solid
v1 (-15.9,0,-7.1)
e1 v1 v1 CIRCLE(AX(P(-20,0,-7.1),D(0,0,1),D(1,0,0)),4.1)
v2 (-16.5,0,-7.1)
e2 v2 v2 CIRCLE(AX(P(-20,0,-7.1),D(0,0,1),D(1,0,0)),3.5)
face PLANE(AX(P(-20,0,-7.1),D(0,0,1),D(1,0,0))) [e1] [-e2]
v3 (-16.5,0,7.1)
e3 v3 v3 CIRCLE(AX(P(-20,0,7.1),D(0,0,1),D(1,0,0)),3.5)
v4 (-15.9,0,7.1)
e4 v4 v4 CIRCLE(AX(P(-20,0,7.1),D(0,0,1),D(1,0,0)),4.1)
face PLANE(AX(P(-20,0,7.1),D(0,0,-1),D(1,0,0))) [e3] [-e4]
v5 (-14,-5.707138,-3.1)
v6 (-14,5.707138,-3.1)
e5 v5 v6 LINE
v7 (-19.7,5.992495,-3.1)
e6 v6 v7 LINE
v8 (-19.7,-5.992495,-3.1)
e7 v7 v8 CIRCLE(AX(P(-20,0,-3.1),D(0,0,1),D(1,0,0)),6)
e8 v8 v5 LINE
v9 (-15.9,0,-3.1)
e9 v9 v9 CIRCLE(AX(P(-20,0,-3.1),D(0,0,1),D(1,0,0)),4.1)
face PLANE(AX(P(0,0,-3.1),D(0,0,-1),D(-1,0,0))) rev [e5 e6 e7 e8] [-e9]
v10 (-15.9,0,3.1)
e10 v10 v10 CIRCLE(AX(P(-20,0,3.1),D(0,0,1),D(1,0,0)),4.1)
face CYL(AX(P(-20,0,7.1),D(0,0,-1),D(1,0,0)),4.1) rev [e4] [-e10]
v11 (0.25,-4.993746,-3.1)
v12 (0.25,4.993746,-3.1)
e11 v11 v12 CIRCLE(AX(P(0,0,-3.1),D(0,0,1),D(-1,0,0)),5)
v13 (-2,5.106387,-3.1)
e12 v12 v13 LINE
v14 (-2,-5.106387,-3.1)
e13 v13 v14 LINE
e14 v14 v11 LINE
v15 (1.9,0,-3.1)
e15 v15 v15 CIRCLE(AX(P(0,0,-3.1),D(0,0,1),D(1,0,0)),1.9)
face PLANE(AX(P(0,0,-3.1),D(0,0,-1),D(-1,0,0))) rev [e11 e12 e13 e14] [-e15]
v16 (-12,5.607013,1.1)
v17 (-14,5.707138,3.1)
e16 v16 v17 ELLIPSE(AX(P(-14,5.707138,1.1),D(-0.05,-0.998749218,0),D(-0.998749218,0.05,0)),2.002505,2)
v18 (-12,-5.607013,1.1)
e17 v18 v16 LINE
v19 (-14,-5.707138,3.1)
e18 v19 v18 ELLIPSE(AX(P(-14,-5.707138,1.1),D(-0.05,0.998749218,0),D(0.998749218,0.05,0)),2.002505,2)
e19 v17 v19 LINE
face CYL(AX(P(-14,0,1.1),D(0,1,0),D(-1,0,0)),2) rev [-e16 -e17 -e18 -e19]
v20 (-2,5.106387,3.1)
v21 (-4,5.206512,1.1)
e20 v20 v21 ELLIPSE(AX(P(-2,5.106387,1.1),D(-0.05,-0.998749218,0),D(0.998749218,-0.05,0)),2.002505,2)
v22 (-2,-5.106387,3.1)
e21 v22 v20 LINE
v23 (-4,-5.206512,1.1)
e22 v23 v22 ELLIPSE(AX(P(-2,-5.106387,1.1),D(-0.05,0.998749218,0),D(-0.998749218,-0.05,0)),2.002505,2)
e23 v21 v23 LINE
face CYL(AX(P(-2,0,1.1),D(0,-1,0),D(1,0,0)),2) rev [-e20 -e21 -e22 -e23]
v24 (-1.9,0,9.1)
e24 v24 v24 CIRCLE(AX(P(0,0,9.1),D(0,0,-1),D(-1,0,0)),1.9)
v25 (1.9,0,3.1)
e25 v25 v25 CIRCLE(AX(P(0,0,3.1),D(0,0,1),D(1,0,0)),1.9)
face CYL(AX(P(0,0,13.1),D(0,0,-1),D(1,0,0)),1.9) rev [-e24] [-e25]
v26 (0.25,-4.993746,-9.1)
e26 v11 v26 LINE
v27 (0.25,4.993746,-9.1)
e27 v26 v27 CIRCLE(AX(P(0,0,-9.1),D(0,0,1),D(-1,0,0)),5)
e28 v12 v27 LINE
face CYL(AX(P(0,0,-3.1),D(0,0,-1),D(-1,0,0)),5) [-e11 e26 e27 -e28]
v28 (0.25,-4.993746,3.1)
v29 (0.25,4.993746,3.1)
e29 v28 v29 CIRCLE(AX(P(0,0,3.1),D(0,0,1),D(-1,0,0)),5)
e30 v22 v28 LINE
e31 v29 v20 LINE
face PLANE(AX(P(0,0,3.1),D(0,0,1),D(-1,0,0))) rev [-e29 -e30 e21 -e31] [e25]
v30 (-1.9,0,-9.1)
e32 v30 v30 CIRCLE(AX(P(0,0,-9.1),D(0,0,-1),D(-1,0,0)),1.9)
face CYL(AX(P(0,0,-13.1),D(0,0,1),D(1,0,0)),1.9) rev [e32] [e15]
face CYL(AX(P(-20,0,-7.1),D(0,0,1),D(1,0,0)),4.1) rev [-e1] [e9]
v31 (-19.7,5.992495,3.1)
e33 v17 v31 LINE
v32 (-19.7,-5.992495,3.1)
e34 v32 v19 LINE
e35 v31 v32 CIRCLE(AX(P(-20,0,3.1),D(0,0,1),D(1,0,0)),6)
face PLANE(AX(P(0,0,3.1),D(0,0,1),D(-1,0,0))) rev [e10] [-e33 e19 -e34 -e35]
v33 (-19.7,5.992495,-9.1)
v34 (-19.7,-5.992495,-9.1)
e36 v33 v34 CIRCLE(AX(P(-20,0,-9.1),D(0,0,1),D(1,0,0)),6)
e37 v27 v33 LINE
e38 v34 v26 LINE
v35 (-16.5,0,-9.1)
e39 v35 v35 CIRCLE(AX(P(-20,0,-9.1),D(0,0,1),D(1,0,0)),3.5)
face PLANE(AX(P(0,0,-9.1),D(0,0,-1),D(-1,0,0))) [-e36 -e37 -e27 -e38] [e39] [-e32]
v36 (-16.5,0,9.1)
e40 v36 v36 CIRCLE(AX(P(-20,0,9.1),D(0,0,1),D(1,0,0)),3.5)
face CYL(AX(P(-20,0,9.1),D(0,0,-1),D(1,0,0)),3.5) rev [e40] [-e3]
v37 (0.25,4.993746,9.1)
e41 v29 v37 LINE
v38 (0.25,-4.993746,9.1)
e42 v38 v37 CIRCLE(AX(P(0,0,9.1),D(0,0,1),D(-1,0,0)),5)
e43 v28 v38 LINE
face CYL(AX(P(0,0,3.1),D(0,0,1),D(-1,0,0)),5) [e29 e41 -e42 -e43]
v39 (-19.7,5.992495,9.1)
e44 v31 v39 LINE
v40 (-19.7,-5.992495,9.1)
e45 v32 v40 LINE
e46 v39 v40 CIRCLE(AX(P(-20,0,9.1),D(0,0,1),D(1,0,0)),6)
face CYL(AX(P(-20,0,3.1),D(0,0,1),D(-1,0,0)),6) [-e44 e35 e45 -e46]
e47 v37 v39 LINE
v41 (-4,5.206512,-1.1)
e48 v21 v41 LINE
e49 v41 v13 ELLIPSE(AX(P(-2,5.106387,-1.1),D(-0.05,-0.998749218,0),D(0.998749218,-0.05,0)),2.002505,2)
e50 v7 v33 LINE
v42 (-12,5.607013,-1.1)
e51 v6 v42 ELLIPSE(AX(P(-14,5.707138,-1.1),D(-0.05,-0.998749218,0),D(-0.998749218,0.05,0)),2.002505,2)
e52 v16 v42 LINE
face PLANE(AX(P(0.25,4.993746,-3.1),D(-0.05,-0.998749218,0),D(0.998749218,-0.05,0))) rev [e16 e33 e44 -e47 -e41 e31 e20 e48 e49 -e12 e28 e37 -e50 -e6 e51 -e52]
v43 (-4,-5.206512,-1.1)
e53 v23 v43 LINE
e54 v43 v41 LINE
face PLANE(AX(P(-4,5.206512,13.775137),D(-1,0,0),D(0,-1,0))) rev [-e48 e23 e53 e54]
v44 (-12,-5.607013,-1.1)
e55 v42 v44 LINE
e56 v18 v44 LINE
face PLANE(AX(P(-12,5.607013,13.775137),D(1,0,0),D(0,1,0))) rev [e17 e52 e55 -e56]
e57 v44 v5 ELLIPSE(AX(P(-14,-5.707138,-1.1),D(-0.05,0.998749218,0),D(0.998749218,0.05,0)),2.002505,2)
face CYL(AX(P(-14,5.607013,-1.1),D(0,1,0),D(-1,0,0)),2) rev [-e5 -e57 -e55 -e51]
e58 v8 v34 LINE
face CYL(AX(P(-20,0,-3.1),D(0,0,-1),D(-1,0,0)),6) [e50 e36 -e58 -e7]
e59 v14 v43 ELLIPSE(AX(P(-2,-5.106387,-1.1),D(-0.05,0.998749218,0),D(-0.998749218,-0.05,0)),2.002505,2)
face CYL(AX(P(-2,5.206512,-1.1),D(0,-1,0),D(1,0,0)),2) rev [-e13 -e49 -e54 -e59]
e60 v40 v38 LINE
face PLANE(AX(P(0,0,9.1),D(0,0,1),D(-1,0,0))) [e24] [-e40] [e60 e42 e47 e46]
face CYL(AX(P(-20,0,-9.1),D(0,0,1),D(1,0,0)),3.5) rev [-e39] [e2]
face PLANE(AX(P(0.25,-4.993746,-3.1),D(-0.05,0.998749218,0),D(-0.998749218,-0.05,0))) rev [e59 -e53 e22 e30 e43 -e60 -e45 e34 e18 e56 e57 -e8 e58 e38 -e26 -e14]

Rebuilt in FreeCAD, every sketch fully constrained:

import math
import FreeCAD as App
import Part
import Sketcher
from FreeCAD import Vector
Q = App.Units.Quantity


def edges_at(feature, points):
    """Names of the edges that pass closest to the given points."""
    edges = feature.Shape.Edges
    near = lambda p: min(range(len(edges)), key=lambda i: edges[i].distToShape(Part.Vertex(*p))[0])
    return sorted({f"Edge{near(p) + 1}" for p in points})


def add_polygon(sketch, points):
    """Adds a closed chain of lines whose ends are joined by coincident constraints."""
    first, n = sketch.GeometryCount, len(points)
    for a, b in zip(points, points[1:] + points[:1]):
        sketch.addGeometry(Part.LineSegment(App.Vector(*a, 0), App.Vector(*b, 0)), False)
    for i in range(n):
        sketch.addConstraint(Sketcher.Constraint("Coincident", first + i, 2, first + (i + 1) % n, 1))

doc = App.newDocument("Part")
body = doc.addObject("PartDesign::Body", "Body")

# Sketch on XY plane
sketch1 = body.newObject("Sketcher::SketchObject", "Sketch")
sketch1.AttachmentSupport = (doc.getObject("XY_Plane"), [""])
sketch1.MapMode = "FlatFace"
sketch1.AttachmentOffset = App.Placement(Vector(0, 0, -9.1), App.Rotation())
sketch1.addGeometry(Part.LineSegment(Vector(0, 5, 0), Vector(-20, 6, 0)), False)
sketch1.addGeometry(Part.ArcOfCircle(Part.Circle(Vector(-20, 0, 0), Vector(0, 0, 1), 6), math.radians(87), math.radians(273)), False)
sketch1.addGeometry(Part.LineSegment(Vector(-20, -6, 0), Vector(0, -5, 0)), False)
sketch1.addGeometry(Part.ArcOfCircle(Part.Circle(Vector(0, 0, 0), Vector(0, 0, 1), 5), math.radians(-87), math.radians(87)), False)
sketch1.addConstraint(Sketcher.Constraint("Tangent", 0, 2, 1, 1))
sketch1.addConstraint(Sketcher.Constraint("Tangent", 1, 2, 2, 1))
sketch1.addConstraint(Sketcher.Constraint("Tangent", 2, 2, 3, 1))
sketch1.addConstraint(Sketcher.Constraint("Tangent", 3, 2, 0, 1))
sketch1.addConstraint(Sketcher.Constraint("Coincident", 3, 3, -1, 1))
sketch1.addConstraint(Sketcher.Constraint("PointOnObject", 1, 3, -1))
sketch1.addConstraint(Sketcher.Constraint("Radius", 1, Q("6 mm")))
sketch1.addConstraint(Sketcher.Constraint("Radius", 3, Q("5 mm")))
sketch1.addConstraint(Sketcher.Constraint("DistanceX", 1, 3, -1, 1, Q("20 mm")))
pad1 = body.newObject("PartDesign::Pad", "Pad")
pad1.Profile = sketch1
pad1.Length = 6

# Sketch on XY plane
sketch2 = body.newObject("Sketcher::SketchObject", "Sketch001")
sketch2.AttachmentSupport = (doc.getObject("XY_Plane"), [""])
sketch2.MapMode = "FlatFace"
sketch2.AttachmentOffset = App.Placement(Vector(0, 0, -3.1), App.Rotation())
sketch2.addGeometry(Part.Circle(Vector(-20, 0, 0), Vector(0, 0, 1), 4.1), False)
sketch2.addConstraint(Sketcher.Constraint("PointOnObject", 0, 3, -1))
sketch2.addConstraint(Sketcher.Constraint("Diameter", 0, Q("8.2 mm")))
sketch2.addConstraint(Sketcher.Constraint("DistanceX", 0, 3, -1, 1, Q("20 mm")))
pocket1 = body.newObject("PartDesign::Pocket", "Pocket")
pocket1.Profile = sketch2
pocket1.Length = 4

# Sketch on XY plane
sketch3 = body.newObject("Sketcher::SketchObject", "Sketch002")
sketch3.AttachmentSupport = (doc.getObject("XY_Plane"), [""])
sketch3.MapMode = "FlatFace"
sketch3.AttachmentOffset = App.Placement(Vector(0, 0, -3.1), App.Rotation())
sketch3.addGeometry(Part.Circle(Vector(-20, 0, 0), Vector(0, 0, 1), 3.5), False)
sketch3.addConstraint(Sketcher.Constraint("PointOnObject", 0, 3, -1))
sketch3.addConstraint(Sketcher.Constraint("Diameter", 0, Q("7 mm")))
sketch3.addConstraint(Sketcher.Constraint("DistanceX", 0, 3, -1, 1, Q("20 mm")))
pocket2 = body.newObject("PartDesign::Pocket", "Pocket001")
pocket2.Profile = sketch3
pocket2.Type = "ThroughAll"

# Sketch on XY plane
sketch4 = body.newObject("Sketcher::SketchObject", "Sketch003")
sketch4.AttachmentSupport = (doc.getObject("XY_Plane"), [""])
sketch4.MapMode = "FlatFace"
sketch4.AttachmentOffset = App.Placement(Vector(0, 0, -3.1), App.Rotation())
sketch4.addGeometry(Part.Circle(Vector(0, 0, 0), Vector(0, 0, 1), 1.9), False)
sketch4.addConstraint(Sketcher.Constraint("Coincident", 0, 3, -1, 1))
sketch4.addConstraint(Sketcher.Constraint("Diameter", 0, Q("3.8 mm")))
pocket3 = body.newObject("PartDesign::Pocket", "Pocket002")
pocket3.Profile = sketch4
pocket3.Length = 10

# Sketch on XY plane
sketch5 = body.newObject("Sketcher::SketchObject", "Sketch004")
sketch5.AttachmentSupport = (doc.getObject("XY_Plane"), [""])
sketch5.MapMode = "FlatFace"
sketch5.AttachmentOffset = App.Placement(Vector(0, 0, -3.1), App.Rotation())
add_polygon(sketch5, [(-4, 5), (-12, 6), (-12, -6), (-4, -5)])  # lines 0-3
sketch5.addConstraint(Sketcher.Constraint("Vertical", 1))
sketch5.addConstraint(Sketcher.Constraint("Vertical", 3))
sketch5.addConstraint(Sketcher.Constraint("Equal", 0, 2))
sketch5.addConstraint(Sketcher.Constraint("DistanceX", 0, 2, -1, 1, Q("12 mm")))
sketch5.addConstraint(Sketcher.Constraint("DistanceX", 2, 2, -1, 1, Q("4 mm")))
sketch5.addConstraint(Sketcher.Constraint("DistanceY", 1, 2, 2, 2, Q("0.400501 mm")))
sketch5.addConstraint(Sketcher.Constraint("DistanceY", 1, 2, 1, 1, Q("11.214026 mm")))
sketch5.addConstraint(Sketcher.Constraint("DistanceY", -1, 1, 0, 2, Q("5.607013 mm")))
pad2 = body.newObject("PartDesign::Pad", "Pad001")
pad2.Profile = sketch5
pad2.Length = 3.1
doc.recompute()

mirrored = body.newObject("PartDesign::Mirrored", "Mirrored")
mirrored.Originals = [pad1, pocket1, pocket2, pocket3, pad2]
mirrored.MirrorPlane = (doc.getObject("XY_Plane"), [""])
body.Tip = mirrored
doc.recompute()

fillet = body.newObject("PartDesign::Fillet", "Fillet")
fillet.Base = (mirrored, edges_at(mirrored, [
    (-4, 0, -3.1),
    (-12, 0, -3.1),
    (-4, 0, 3.1),
    (-12, 0, 3.1),
]))
fillet.Radius = 2

doc.recompute()
